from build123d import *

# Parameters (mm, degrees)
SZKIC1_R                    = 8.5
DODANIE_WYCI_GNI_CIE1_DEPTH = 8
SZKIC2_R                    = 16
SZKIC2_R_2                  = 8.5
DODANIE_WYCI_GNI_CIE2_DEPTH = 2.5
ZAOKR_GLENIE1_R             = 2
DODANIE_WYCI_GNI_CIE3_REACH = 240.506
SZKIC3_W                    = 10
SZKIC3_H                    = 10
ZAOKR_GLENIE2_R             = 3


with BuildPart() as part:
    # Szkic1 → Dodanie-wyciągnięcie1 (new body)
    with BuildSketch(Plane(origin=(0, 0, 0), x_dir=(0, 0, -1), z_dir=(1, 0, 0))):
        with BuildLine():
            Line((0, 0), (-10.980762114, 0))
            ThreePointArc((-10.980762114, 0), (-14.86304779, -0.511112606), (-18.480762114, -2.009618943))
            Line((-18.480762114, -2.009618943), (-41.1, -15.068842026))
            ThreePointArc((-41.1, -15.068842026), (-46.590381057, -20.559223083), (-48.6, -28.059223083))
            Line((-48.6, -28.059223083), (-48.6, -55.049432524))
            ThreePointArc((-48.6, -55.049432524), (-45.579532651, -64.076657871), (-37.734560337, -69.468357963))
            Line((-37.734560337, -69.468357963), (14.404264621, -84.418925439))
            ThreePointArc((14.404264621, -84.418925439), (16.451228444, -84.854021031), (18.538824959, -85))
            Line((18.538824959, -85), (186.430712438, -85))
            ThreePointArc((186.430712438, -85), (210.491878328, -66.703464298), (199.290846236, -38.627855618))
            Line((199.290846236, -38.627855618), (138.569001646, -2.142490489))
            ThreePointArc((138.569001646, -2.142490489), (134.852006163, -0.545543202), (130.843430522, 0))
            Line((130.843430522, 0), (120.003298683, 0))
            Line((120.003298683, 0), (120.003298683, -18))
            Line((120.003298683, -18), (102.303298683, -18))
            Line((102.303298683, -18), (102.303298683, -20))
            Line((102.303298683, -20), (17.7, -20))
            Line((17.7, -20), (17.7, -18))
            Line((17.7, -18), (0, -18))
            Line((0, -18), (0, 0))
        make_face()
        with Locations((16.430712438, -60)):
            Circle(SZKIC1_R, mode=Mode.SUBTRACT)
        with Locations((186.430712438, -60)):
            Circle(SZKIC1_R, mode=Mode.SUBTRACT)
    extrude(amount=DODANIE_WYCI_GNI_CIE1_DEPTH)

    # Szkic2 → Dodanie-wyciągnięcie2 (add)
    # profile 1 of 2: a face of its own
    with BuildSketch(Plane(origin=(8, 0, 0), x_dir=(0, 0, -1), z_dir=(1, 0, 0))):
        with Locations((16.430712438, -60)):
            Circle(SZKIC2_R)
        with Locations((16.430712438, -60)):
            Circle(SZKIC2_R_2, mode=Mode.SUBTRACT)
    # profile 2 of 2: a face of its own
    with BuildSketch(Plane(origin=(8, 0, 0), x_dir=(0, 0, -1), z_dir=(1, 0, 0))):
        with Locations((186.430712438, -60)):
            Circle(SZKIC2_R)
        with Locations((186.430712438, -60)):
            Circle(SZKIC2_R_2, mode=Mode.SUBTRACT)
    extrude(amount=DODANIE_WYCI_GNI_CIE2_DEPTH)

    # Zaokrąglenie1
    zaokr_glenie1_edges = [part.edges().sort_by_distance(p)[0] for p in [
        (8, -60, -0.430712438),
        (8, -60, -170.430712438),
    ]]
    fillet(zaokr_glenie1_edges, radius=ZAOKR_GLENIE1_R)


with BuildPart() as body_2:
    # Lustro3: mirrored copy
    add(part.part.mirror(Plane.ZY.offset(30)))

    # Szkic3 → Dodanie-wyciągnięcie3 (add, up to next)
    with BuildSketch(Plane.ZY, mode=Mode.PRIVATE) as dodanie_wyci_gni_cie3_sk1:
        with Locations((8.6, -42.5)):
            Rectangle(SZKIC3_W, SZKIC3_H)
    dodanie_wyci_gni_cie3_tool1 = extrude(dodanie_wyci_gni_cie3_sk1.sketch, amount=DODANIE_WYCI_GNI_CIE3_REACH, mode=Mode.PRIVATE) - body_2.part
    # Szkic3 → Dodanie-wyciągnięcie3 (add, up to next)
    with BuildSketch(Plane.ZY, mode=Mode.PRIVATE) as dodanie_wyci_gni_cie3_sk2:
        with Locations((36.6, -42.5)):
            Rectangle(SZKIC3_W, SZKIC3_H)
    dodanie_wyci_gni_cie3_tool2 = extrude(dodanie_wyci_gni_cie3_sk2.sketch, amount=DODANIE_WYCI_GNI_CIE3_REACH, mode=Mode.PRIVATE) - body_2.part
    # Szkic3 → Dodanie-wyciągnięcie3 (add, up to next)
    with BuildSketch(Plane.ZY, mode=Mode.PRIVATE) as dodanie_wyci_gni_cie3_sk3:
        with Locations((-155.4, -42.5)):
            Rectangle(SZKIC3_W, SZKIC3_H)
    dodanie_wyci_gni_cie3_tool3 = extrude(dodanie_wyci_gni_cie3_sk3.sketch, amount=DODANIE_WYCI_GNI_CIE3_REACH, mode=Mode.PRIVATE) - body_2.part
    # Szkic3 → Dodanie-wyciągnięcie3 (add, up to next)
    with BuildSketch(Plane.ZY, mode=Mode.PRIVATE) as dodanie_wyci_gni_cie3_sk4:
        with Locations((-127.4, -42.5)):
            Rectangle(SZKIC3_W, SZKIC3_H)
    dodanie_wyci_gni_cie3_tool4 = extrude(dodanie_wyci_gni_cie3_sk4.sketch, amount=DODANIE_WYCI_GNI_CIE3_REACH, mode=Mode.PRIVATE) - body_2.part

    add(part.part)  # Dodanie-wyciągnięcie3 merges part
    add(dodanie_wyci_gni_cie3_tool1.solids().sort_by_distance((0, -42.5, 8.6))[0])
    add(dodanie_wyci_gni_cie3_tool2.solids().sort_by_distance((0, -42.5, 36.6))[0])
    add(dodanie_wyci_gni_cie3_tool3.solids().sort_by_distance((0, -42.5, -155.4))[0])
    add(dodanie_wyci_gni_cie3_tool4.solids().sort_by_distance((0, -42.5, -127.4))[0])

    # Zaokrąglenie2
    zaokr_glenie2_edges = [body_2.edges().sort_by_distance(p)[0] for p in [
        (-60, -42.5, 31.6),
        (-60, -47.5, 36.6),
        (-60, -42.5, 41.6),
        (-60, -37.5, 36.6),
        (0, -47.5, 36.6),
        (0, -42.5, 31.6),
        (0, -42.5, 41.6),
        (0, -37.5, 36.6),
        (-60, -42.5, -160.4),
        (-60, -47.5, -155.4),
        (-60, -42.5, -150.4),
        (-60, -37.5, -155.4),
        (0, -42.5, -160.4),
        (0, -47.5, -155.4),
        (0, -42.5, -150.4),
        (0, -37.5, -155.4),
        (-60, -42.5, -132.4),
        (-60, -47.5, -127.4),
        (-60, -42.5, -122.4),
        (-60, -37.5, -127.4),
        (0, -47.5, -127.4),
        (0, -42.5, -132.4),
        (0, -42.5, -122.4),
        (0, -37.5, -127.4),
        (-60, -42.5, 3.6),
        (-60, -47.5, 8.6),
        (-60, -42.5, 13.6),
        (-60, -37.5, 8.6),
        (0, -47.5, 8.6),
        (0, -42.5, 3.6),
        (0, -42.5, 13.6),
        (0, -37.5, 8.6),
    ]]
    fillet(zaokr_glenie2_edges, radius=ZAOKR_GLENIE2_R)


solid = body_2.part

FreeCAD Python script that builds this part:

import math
import FreeCAD as App
import Part
import Sketcher
from FreeCAD import Vector
Q = App.Units.Quantity


def edges_at(feature, points):
    """Names of the edges that pass closest to the given points."""
    edges = feature.Shape.Edges
    near = lambda p: min(range(len(edges)), key=lambda i: edges[i].distToShape(Part.Vertex(*p))[0])
    return sorted({f"Edge{near(p) + 1}" for p in points})


def add_polygon(sketch, points):
    """Adds a closed chain of lines whose ends are joined by coincident constraints."""
    first, n = sketch.GeometryCount, len(points)
    for a, b in zip(points, points[1:] + points[:1]):
        sketch.addGeometry(Part.LineSegment(App.Vector(*a, 0), App.Vector(*b, 0)), False)
    for i in range(n):
        sketch.addConstraint(Sketcher.Constraint("Coincident", first + i, 2, first + (i + 1) % n, 1))

doc = App.newDocument("Part")
params = doc.addObject("Spreadsheet::Sheet", "Params")
for row, (alias, value) in enumerate([
    ("sketch1_diameter", "17 mm"),
    ("sketch1_radius", "15 mm"),
    ("sketch1_width", "18 mm"),
    ("sketch1_width2", "2 mm"),
    ("sketch1_height", "17.7 mm"),
    ("pad1_length", "8 mm"),
    ("sketch2_diameter", "32 mm"),
    ("sketch2_diameter2", "17 mm"),
    ("pad2_length", "2.5 mm"),
    ("fillet_radius", "2 mm"),
    ("sketch3_width", "10 mm"),
    ("sketch4_width", "10 mm"),
    ("sketch5_width", "10 mm"),
    ("sketch6_width", "10 mm"),
    ("fillet2_radius", "3 mm"),
], start=1):
    params.set(f"A{row}", alias)
    params.set(f"B{row}", "=" + value)
    params.setAlias(f"B{row}", alias)

body = doc.addObject("PartDesign::Body", "Body")

# Sketch on YZ plane
sketch1 = body.newObject("Sketcher::SketchObject", "Sketch")
sketch1.AttachmentSupport = (doc.getObject("YZ_Plane"), [""])
sketch1.MapMode = "FlatFace"
sketch1.addGeometry([
    Part.LineSegment(Vector(0, 0, 0), Vector(0, 11, 0)),  # 0
    Part.ArcOfCircle(Part.Circle(Vector(-15, 11, 0), Vector(0, 0, 1), 15), math.radians(0), math.radians(30)),  # 1
    Part.LineSegment(Vector(-2, 18.5, 0), Vector(-15.1, 41.1, 0)),  # 2
    Part.ArcOfCircle(Part.Circle(Vector(-28.1, 33.6, 0), Vector(0, 0, 1), 15), math.radians(30), math.radians(90)),  # 3
    Part.LineSegment(Vector(-28.1, 48.6, 0), Vector(-55, 48.6, 0)),  # 4
    Part.ArcOfCircle(Part.Circle(Vector(-55, 33.6, 0), Vector(0, 0, 1), 15), math.radians(90), math.radians(164)),  # 5
    Part.LineSegment(Vector(-69.5, 37.7, 0), Vector(-84.4, -14.4, 0)),  # 6
    Part.ArcOfCircle(Part.Circle(Vector(-70, -18.5, 0), Vector(0, 0, 1), 15), math.radians(164), math.radians(180)),  # 7
    Part.LineSegment(Vector(-85, -18.5, 0), Vector(-85, -186.4, 0)),  # 8
    Part.ArcOfCircle(Part.Circle(Vector(-60, -186.4, 0), Vector(0, 0, 1), 25), math.radians(180), math.radians(329)),  # 9
    Part.LineSegment(Vector(-38.6, -199.3, 0), Vector(-2.1, -138.6, 0)),  # 10
    Part.ArcOfCircle(Part.Circle(Vector(-15, -130.8, 0), Vector(0, 0, 1), 15), math.radians(-31), math.radians(0)),  # 11
    Part.LineSegment(Vector(0, -130.8, 0), Vector(0, -120, 0)),  # 12
    Part.LineSegment(Vector(0, -120, 0), Vector(-18, -120, 0)),  # 13
    Part.LineSegment(Vector(-18, -120, 0), Vector(-18, -102.3, 0)),  # 14
    Part.LineSegment(Vector(-18, -102.3, 0), Vector(-20, -102.3, 0)),  # 15
    Part.LineSegment(Vector(-20, -102.3, 0), Vector(-20, -17.7, 0)),  # 16
    Part.LineSegment(Vector(-20, -17.7, 0), Vector(-18, -17.7, 0)),  # 17
    Part.LineSegment(Vector(-18, -17.7, 0), Vector(-18, 0, 0)),  # 18
    Part.LineSegment(Vector(-18, 0, 0), Vector(0, 0, 0)),  # 19
    Part.Circle(Vector(-60, -16.4, 0), Vector(0, 0, 1), 8.5),  # 20
    Part.Circle(Vector(-60, -186.4, 0), Vector(0, 0, 1), 8.5),  # 21
], False)
sketch1.addConstraint([
    Sketcher.Constraint("Tangent", 0, 2, 1, 1),
    Sketcher.Constraint("Tangent", 1, 2, 2, 1),
    Sketcher.Constraint("Tangent", 2, 2, 3, 1),
    Sketcher.Constraint("Tangent", 3, 2, 4, 1),
    Sketcher.Constraint("Tangent", 4, 2, 5, 1),
    Sketcher.Constraint("Tangent", 5, 2, 6, 1),
    Sketcher.Constraint("Tangent", 6, 2, 7, 1),
    Sketcher.Constraint("Tangent", 7, 2, 8, 1),
    Sketcher.Constraint("Tangent", 8, 2, 9, 1),
    Sketcher.Constraint("Tangent", 9, 2, 10, 1),
    Sketcher.Constraint("Tangent", 10, 2, 11, 1),
    Sketcher.Constraint("Tangent", 11, 2, 12, 1),
    Sketcher.Constraint("Coincident", 12, 2, 13, 1),
    Sketcher.Constraint("Coincident", 13, 2, 14, 1),
    Sketcher.Constraint("Coincident", 14, 2, 15, 1),
    Sketcher.Constraint("Coincident", 15, 2, 16, 1),
    Sketcher.Constraint("Coincident", 16, 2, 17, 1),
    Sketcher.Constraint("Coincident", 17, 2, 18, 1),
    Sketcher.Constraint("Coincident", 18, 2, 19, 1),
    Sketcher.Constraint("Coincident", 19, 2, 0, 1),
    Sketcher.Constraint("Vertical", 0),
    Sketcher.Constraint("Horizontal", 4),
    Sketcher.Constraint("Vertical", 8),
    Sketcher.Constraint("Vertical", 12),
    Sketcher.Constraint("Horizontal", 13),
    Sketcher.Constraint("Vertical", 14),
    Sketcher.Constraint("Horizontal", 15),
    Sketcher.Constraint("Vertical", 16),
    Sketcher.Constraint("Horizontal", 17),
    Sketcher.Constraint("Vertical", 18),
    Sketcher.Constraint("Horizontal", 19),
    Sketcher.Constraint("Coincident", 19, 2, -1, 1),
    Sketcher.Constraint("Equal", 1, 3),
    Sketcher.Constraint("Equal", 3, 5),
    Sketcher.Constraint("Equal", 5, 7),
    Sketcher.Constraint("Equal", 7, 11),
    Sketcher.Constraint("Equal", 20, 21),
    Sketcher.Constraint("PointOnObject", 11, 2, -2),
    Sketcher.Constraint("Horizontal", 9, 3, 21, 3),
    Sketcher.Constraint("Vertical", 20, 3, 21, 3),
    Sketcher.Constraint("Vertical", 14, 2, 17, 2),
    Sketcher.Constraint("Equal", 14, 18),
    Sketcher.Constraint("Diameter", 20, Q("17 mm")),
    Sketcher.Constraint("Radius", 1, Q("15 mm")),
    Sketcher.Constraint("DistanceX", 13, 2, 13, 1, Q("18 mm")),
    Sketcher.Constraint("DistanceX", 15, 2, 15, 1, Q("2 mm")),
    Sketcher.Constraint("Angle", 2, Q("120 deg")),
    Sketcher.Constraint("Angle", 6, Q("-106 deg")),
    Sketcher.Constraint("Angle", 10, Q("59 deg")),
    Sketcher.Constraint("DistanceY", 14, 1, 14, 2, Q("17.7 mm")),
    Sketcher.Constraint("DistanceX", 7, 3, -1, 1, Q("70 mm")),
    Sketcher.Constraint("DistanceX", 20, 3, -1, 1, Q("60 mm")),
    Sketcher.Constraint("DistanceY", 21, 3, 20, 3, Q("170 mm")),
    Sketcher.Constraint("DistanceY", -1, 1, 3, 3, Q("33.6 mm")),
    Sketcher.Constraint("DistanceY", 16, 1, 16, 2, Q("84.603299 mm")),
    Sketcher.Constraint("DistanceY", 10, 2, -1, 1, Q("138.569002 mm")),
    Sketcher.Constraint("Radius", 9, Q("24.969288 mm")),
    Sketcher.Constraint("DistanceX", 4, 2, 4, 1, Q("26.990209 mm")),
    Sketcher.Constraint("Distance", 6, Q("54.23999 mm")),
])
sketch1.setExpression("Constraints[42]", "Params.sketch1_diameter")
sketch1.setExpression("Constraints[43]", "Params.sketch1_radius")
sketch1.setExpression("Constraints[44]", "Params.sketch1_width")
sketch1.setExpression("Constraints[45]", "Params.sketch1_width2")
sketch1.setExpression("Constraints[49]", "Params.sketch1_height")
pad1 = body.newObject("PartDesign::Pad", "Pad")
pad1.Profile = sketch1
pad1.setExpression("Length", "Params.pad1_length")

# Sketch on YZ plane
sketch2 = body.newObject("Sketcher::SketchObject", "Sketch001")
sketch2.AttachmentSupport = (doc.getObject("YZ_Plane"), [""])
sketch2.MapMode = "FlatFace"
sketch2.AttachmentOffset = App.Placement(Vector(0, 0, 8), App.Rotation())
sketch2.addGeometry([
    Part.Circle(Vector(-60, -16, 0), Vector(0, 0, 1), 16),
    Part.Circle(Vector(-60, -16, 0), Vector(0, 0, 1), 8),
    Part.Circle(Vector(-60, -186, 0), Vector(0, 0, 1), 16),
    Part.Circle(Vector(-60, -186, 0), Vector(0, 0, 1), 8),
], False)
sketch2.addConstraint([
    Sketcher.Constraint("Coincident", 1, 3, 0, 3),
    Sketcher.Constraint("Coincident", 3, 3, 2, 3),
    Sketcher.Constraint("Equal", 0, 2),
    Sketcher.Constraint("Equal", 1, 3),
    Sketcher.Constraint("Vertical", 1, 3, 2, 3),
    Sketcher.Constraint("Diameter", 0, Q("32 mm")),
    Sketcher.Constraint("Diameter", 1, Q("17 mm")),
    Sketcher.Constraint("DistanceX", 0, 3, -1, 1, Q("60 mm")),
    Sketcher.Constraint("DistanceY", 2, 3, 0, 3, Q("170 mm")),
    Sketcher.Constraint("DistanceY", 0, 3, -1, 1, Q("16.430712 mm")),
])
sketch2.setExpression("Constraints[5]", "Params.sketch2_diameter")
sketch2.setExpression("Constraints[6]", "Params.sketch2_diameter2")
pad2 = body.newObject("PartDesign::Pad", "Pad001")
pad2.Profile = sketch2
pad2.setExpression("Length", "Params.pad2_length")
doc.recompute()

fillet = body.newObject("PartDesign::Fillet", "Fillet")
fillet.Base = (pad2, edges_at(pad2, [(8, -60, -0.431), (8, -60, -170.431)]))
fillet.setExpression("Radius", "Params.fillet_radius")
body2 = doc.addObject("PartDesign::Body", "Body001")
body2.AllowCompound = True
doc.recompute()

mirroring = doc.addObject("Part::Mirroring", "Mirroring")
mirroring.Source = body
mirroring.Base = Vector(-30, 0, 0)
mirroring.Normal = Vector(-1, 0, 0)
body2.BaseFeature = mirroring
doc.recompute()

boolean = body2.newObject("PartDesign::Boolean", "Boolean")
boolean.Type = "Fuse"
boolean.addObjects([body])

# Sketch on YZ plane
sketch3 = body2.newObject("Sketcher::SketchObject", "Sketch002")
sketch3.AttachmentSupport = (doc.getObject("YZ_Plane001"), [""])
sketch3.MapMode = "FlatFace"
add_polygon(sketch3, [(-38, 4), (-48, 4), (-48, 14), (-38, 14)])  # lines 0-3
sketch3.addConstraint([
    Sketcher.Constraint("Horizontal", 0),
    Sketcher.Constraint("Vertical", 1),
    Sketcher.Constraint("Horizontal", 2),
    Sketcher.Constraint("Vertical", 3),
    Sketcher.Constraint("Equal", 2, 1),
    Sketcher.Constraint("DistanceX", 0, 2, 0, 1, Q("10 mm")),
    Sketcher.Constraint("DistanceX", 0, 2, -1, 1, Q("47.5 mm")),
    Sketcher.Constraint("DistanceY", -1, 1, 0, 2, Q("3.6 mm")),
])
sketch3.setExpression("Constraints[9]", "Params.sketch3_width")
pad3 = body2.newObject("PartDesign::Pad", "Pad002")
pad3.Profile = sketch3
pad3.Type = "UpToFirst"
pad3.Reversed = True

# Sketch on YZ plane
sketch4 = body2.newObject("Sketcher::SketchObject", "Sketch003")
sketch4.AttachmentSupport = (doc.getObject("YZ_Plane001"), [""])
sketch4.MapMode = "FlatFace"
add_polygon(sketch4, [(-38, 32), (-48, 32), (-48, 42), (-38, 42)])  # lines 0-3
sketch4.addConstraint([
    Sketcher.Constraint("Horizontal", 0),
    Sketcher.Constraint("Vertical", 1),
    Sketcher.Constraint("Horizontal", 2),
    Sketcher.Constraint("Vertical", 3),
    Sketcher.Constraint("Equal", 2, 1),
    Sketcher.Constraint("DistanceX", 0, 2, 0, 1, Q("10 mm")),
    Sketcher.Constraint("DistanceX", 0, 2, -1, 1, Q("47.5 mm")),
    Sketcher.Constraint("DistanceY", -1, 1, 0, 2, Q("31.6 mm")),
])
sketch4.setExpression("Constraints[9]", "Params.sketch4_width")
pad4 = body2.newObject("PartDesign::Pad", "Pad003")
pad4.Profile = sketch4
pad4.Type = "UpToFirst"
pad4.Reversed = True

# Sketch on YZ plane
sketch5 = body2.newObject("Sketcher::SketchObject", "Sketch004")
sketch5.AttachmentSupport = (doc.getObject("YZ_Plane001"), [""])
sketch5.MapMode = "FlatFace"
add_polygon(sketch5, [(-38, -160), (-48, -160), (-48, -150), (-38, -150)])  # lines 0-3
sketch5.addConstraint([
    Sketcher.Constraint("Horizontal", 0),
    Sketcher.Constraint("Vertical", 1),
    Sketcher.Constraint("Horizontal", 2),
    Sketcher.Constraint("Vertical", 3),
    Sketcher.Constraint("Equal", 2, 1),
    Sketcher.Constraint("DistanceX", 0, 2, 0, 1, Q("10 mm")),
    Sketcher.Constraint("DistanceX", 0, 2, -1, 1, Q("47.5 mm")),
    Sketcher.Constraint("DistanceY", 0, 2, -1, 1, Q("160.4 mm")),
])
sketch5.setExpression("Constraints[9]", "Params.sketch5_width")
pad5 = body2.newObject("PartDesign::Pad", "Pad004")
pad5.Profile = sketch5
pad5.Type = "UpToFirst"
pad5.Reversed = True

# Sketch on YZ plane
sketch6 = body2.newObject("Sketcher::SketchObject", "Sketch005")
sketch6.AttachmentSupport = (doc.getObject("YZ_Plane001"), [""])
sketch6.MapMode = "FlatFace"
add_polygon(sketch6, [(-38, -132), (-48, -132), (-48, -122), (-38, -122)])  # lines 0-3
sketch6.addConstraint([
    Sketcher.Constraint("Horizontal", 0),
    Sketcher.Constraint("Vertical", 1),
    Sketcher.Constraint("Horizontal", 2),
    Sketcher.Constraint("Vertical", 3),
    Sketcher.Constraint("Equal", 2, 1),
    Sketcher.Constraint("DistanceX", 0, 2, 0, 1, Q("10 mm")),
    Sketcher.Constraint("DistanceX", 0, 2, -1, 1, Q("47.5 mm")),
    Sketcher.Constraint("DistanceY", 0, 2, -1, 1, Q("132.4 mm")),
])
sketch6.setExpression("Constraints[9]", "Params.sketch6_width")
pad6 = body2.newObject("PartDesign::Pad", "Pad005")
pad6.Profile = sketch6
pad6.Type = "UpToFirst"
pad6.Reversed = True
doc.recompute()

fillet2 = body2.newObject("PartDesign::Fillet", "Fillet001")
fillet2.Base = (pad6, edges_at(pad6, [
    (-60, -42.5, 31.6),
    (-60, -47.5, 36.6),
    (-60, -42.5, 41.6),
    (-60, -37.5, 36.6),
    (0, -47.5, 36.6),
    (0, -42.5, 31.6),
    (0, -42.5, 41.6),
    (0, -37.5, 36.6),
    (-60, -42.5, -160.4),
    (-60, -47.5, -155.4),
    (-60, -42.5, -150.4),
    (-60, -37.5, -155.4),
    (0, -42.5, -160.4),
    (0, -47.5, -155.4),
    (0, -42.5, -150.4),
    (0, -37.5, -155.4),
    (-60, -42.5, -132.4),
    (-60, -47.5, -127.4),
    (-60, -42.5, -122.4),
    (-60, -37.5, -127.4),
    (0, -47.5, -127.4),
    (0, -42.5, -132.4),
    (0, -42.5, -122.4),
    (0, -37.5, -127.4),
    (-60, -42.5, 3.6),
    (-60, -47.5, 8.6),
    (-60, -42.5, 13.6),
    (-60, -37.5, 8.6),
    (0, -47.5, 8.6),
    (0, -42.5, 3.6),
    (0, -42.5, 13.6),
    (0, -37.5, 8.6),
]))
fillet2.setExpression("Radius", "Params.fillet2_radius")
mirroring.Visibility = False

doc.recompute()
